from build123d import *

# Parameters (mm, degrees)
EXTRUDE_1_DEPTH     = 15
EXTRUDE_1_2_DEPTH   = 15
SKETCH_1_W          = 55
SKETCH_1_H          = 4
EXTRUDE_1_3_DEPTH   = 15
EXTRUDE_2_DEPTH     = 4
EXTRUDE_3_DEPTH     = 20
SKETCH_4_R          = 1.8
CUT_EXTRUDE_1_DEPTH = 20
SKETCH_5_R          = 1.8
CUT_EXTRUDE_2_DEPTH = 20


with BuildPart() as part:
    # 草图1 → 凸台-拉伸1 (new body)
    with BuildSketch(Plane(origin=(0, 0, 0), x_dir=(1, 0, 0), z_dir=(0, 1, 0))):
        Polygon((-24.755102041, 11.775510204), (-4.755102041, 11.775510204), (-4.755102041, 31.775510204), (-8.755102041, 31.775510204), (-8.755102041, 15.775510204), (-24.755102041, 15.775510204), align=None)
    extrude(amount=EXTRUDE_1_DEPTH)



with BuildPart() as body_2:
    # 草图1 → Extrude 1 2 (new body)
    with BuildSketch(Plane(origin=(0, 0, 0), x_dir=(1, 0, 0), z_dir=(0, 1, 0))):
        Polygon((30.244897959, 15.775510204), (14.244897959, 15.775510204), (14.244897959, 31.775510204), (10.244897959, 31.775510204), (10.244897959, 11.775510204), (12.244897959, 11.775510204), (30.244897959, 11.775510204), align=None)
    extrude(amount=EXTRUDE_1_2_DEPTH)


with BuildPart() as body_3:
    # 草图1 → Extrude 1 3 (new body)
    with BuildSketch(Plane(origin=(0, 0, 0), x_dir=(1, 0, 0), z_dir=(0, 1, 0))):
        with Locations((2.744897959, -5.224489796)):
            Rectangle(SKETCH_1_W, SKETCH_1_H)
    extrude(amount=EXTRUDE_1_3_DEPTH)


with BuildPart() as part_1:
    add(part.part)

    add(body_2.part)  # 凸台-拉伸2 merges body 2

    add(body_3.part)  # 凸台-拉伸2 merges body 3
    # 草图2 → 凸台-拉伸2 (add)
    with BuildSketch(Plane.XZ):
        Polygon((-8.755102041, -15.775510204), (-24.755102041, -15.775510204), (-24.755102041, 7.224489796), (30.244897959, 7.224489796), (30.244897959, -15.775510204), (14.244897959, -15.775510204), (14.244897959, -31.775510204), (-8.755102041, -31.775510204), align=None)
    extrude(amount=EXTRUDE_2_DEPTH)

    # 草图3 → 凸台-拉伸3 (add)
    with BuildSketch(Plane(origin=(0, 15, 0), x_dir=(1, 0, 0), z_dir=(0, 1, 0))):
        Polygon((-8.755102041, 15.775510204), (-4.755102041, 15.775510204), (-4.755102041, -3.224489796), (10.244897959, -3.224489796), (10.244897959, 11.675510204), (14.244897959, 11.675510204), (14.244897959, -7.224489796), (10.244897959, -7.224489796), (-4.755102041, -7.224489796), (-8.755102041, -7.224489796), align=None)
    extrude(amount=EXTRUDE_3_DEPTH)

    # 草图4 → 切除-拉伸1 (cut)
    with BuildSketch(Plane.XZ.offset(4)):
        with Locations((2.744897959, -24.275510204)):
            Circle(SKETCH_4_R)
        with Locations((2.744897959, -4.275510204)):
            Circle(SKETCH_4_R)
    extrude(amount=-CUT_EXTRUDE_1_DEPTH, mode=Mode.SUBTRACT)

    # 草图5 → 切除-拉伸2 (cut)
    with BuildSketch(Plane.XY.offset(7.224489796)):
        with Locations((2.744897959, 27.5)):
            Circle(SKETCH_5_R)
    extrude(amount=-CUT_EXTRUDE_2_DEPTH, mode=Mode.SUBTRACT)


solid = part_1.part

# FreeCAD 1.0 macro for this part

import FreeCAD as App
import Part
import Sketcher
Q = App.Units.Quantity

doc = App.newDocument("Part")
params = doc.addObject("Spreadsheet::Sheet", "Params")
for row, (alias, value) in enumerate([
    ("sketch1_width", "20 mm"),
    ("sketch1_width2", "4 mm"),
    ("pad1_length", "15 mm"),
    ("sketch2_width", "16 mm"),
    ("sketch2_width2", "4 mm"),
    ("pad2_length", "15 mm"),
    ("sketch3_width", "55 mm"),
    ("sketch3_height", "4 mm"),
    ("pad3_length", "15 mm"),
    ("sketch4_width", "16 mm"),
    ("sketch4_width2", "23 mm"),
    ("pad4_length", "4 mm"),
    ("sketch5_width", "4 mm"),
    ("sketch5_width2", "23 mm"),
    ("sketch5_height", "19 mm"),
    ("sketch5_height2", "18.9 mm"),
    ("pad5_length", "20 mm"),
    ("sketch6_diameter", "3.6 mm"),
    ("pocket1_length", "20 mm"),
    ("sketch7_diameter", "3.6 mm"),
    ("pocket2_length", "20 mm"),
], start=1):
    params.set(f"A{row}", alias)
    params.set(f"B{row}", "=" + value)
    params.setAlias(f"B{row}", alias)

body = doc.addObject("PartDesign::Body", "Body")

sketch1 = body.newObject("Sketcher::SketchObject", "Sketch")
sketch1.AttachmentSupport = (doc.getObject("XZ_Plane"), [""])
sketch1.MapMode = "FlatFace"
sketch1.addGeometry(Part.LineSegment(App.Vector(-24.8, -11.8, 0), App.Vector(-4.8, -11.8, 0)), False)
sketch1.addGeometry(Part.LineSegment(App.Vector(-4.8, -11.8, 0), App.Vector(-4.8, -31.8, 0)), False)
sketch1.addGeometry(Part.LineSegment(App.Vector(-4.8, -31.8, 0), App.Vector(-8.8, -31.8, 0)), False)
sketch1.addGeometry(Part.LineSegment(App.Vector(-8.8, -31.8, 0), App.Vector(-8.8, -15.8, 0)), False)
sketch1.addGeometry(Part.LineSegment(App.Vector(-8.8, -15.8, 0), App.Vector(-24.8, -15.8, 0)), False)
sketch1.addGeometry(Part.LineSegment(App.Vector(-24.8, -15.8, 0), App.Vector(-24.8, -11.8, 0)), False)
sketch1.addConstraint(Sketcher.Constraint("Coincident", 0, 2, 1, 1))
sketch1.addConstraint(Sketcher.Constraint("Coincident", 1, 2, 2, 1))
sketch1.addConstraint(Sketcher.Constraint("Coincident", 2, 2, 3, 1))
sketch1.addConstraint(Sketcher.Constraint("Coincident", 3, 2, 4, 1))
sketch1.addConstraint(Sketcher.Constraint("Coincident", 4, 2, 5, 1))
sketch1.addConstraint(Sketcher.Constraint("Coincident", 5, 2, 0, 1))
sketch1.addConstraint(Sketcher.Constraint("Horizontal", 0))
sketch1.addConstraint(Sketcher.Constraint("Vertical", 1))
sketch1.addConstraint(Sketcher.Constraint("Horizontal", 2))
sketch1.addConstraint(Sketcher.Constraint("Vertical", 3))
sketch1.addConstraint(Sketcher.Constraint("Horizontal", 4))
sketch1.addConstraint(Sketcher.Constraint("Vertical", 5))
sketch1.addConstraint(Sketcher.Constraint("Equal", 0, 1))
sketch1.addConstraint(Sketcher.Constraint("Equal", 4, 3))
sketch1.addConstraint(Sketcher.Constraint("DistanceX", 0, 1, 0, 2, Q("20 mm")))
sketch1.addConstraint(Sketcher.Constraint("DistanceX", 2, 2, 2, 1, Q("4 mm")))
sketch1.addConstraint(Sketcher.Constraint("DistanceY", 0, 2, -1, 1, Q("11.77551 mm")))
sketch1.addConstraint(Sketcher.Constraint("DistanceX", 0, 2, -1, 1, Q("4.755102 mm")))
sketch1.setExpression("Constraints[14]", "Params.sketch1_width")
sketch1.setExpression("Constraints[15]", "Params.sketch1_width2")
pad1 = body.newObject("PartDesign::Pad", "Pad")
pad1.Profile = sketch1
pad1.setExpression("Length", "Params.pad1_length")
pad1.Reversed = True
body2 = doc.addObject("PartDesign::Body", "Body001")

sketch2 = body2.newObject("Sketcher::SketchObject", "Sketch001")
sketch2.AttachmentSupport = (doc.getObject("XZ_Plane001"), [""])
sketch2.MapMode = "FlatFace"
sketch2.addGeometry(Part.LineSegment(App.Vector(30.2, -15.8, 0), App.Vector(14.2, -15.8, 0)), False)
sketch2.addGeometry(Part.LineSegment(App.Vector(14.2, -15.8, 0), App.Vector(14.2, -31.8, 0)), False)
sketch2.addGeometry(Part.LineSegment(App.Vector(14.2, -31.8, 0), App.Vector(10.2, -31.8, 0)), False)
sketch2.addGeometry(Part.LineSegment(App.Vector(10.2, -31.8, 0), App.Vector(10.2, -11.8, 0)), False)
sketch2.addGeometry(Part.LineSegment(App.Vector(10.2, -11.8, 0), App.Vector(30.2, -11.8, 0)), False)
sketch2.addGeometry(Part.LineSegment(App.Vector(30.2, -11.8, 0), App.Vector(30.2, -15.8, 0)), False)
sketch2.addConstraint(Sketcher.Constraint("Coincident", 0, 2, 1, 1))
sketch2.addConstraint(Sketcher.Constraint("Coincident", 1, 2, 2, 1))
sketch2.addConstraint(Sketcher.Constraint("Coincident", 2, 2, 3, 1))
sketch2.addConstraint(Sketcher.Constraint("Coincident", 3, 2, 4, 1))
sketch2.addConstraint(Sketcher.Constraint("Coincident", 4, 2, 5, 1))
sketch2.addConstraint(Sketcher.Constraint("Coincident", 5, 2, 0, 1))
sketch2.addConstraint(Sketcher.Constraint("Horizontal", 0))
sketch2.addConstraint(Sketcher.Constraint("Vertical", 1))
sketch2.addConstraint(Sketcher.Constraint("Horizontal", 2))
sketch2.addConstraint(Sketcher.Constraint("Vertical", 3))
sketch2.addConstraint(Sketcher.Constraint("Horizontal", 4))
sketch2.addConstraint(Sketcher.Constraint("Vertical", 5))
sketch2.addConstraint(Sketcher.Constraint("Equal", 0, 1))
sketch2.addConstraint(Sketcher.Constraint("Equal", 4, 3))
sketch2.addConstraint(Sketcher.Constraint("DistanceX", 0, 2, 0, 1, Q("16 mm")))
sketch2.addConstraint(Sketcher.Constraint("DistanceX", 2, 2, 2, 1, Q("4 mm")))
sketch2.addConstraint(Sketcher.Constraint("DistanceY", 0, 2, -1, 1, Q("15.77551 mm")))
sketch2.addConstraint(Sketcher.Constraint("DistanceX", -1, 1, 0, 2, Q("14.244898 mm")))
sketch2.setExpression("Constraints[14]", "Params.sketch2_width")
sketch2.setExpression("Constraints[15]", "Params.sketch2_width2")
pad2 = body2.newObject("PartDesign::Pad", "Pad001")
pad2.Profile = sketch2
pad2.setExpression("Length", "Params.pad2_length")
pad2.Reversed = True
body3 = doc.addObject("PartDesign::Body", "Body002")

sketch3 = body3.newObject("Sketcher::SketchObject", "Sketch002")
sketch3.AttachmentSupport = (doc.getObject("XZ_Plane002"), [""])
sketch3.MapMode = "FlatFace"
sketch3.addGeometry(Part.LineSegment(App.Vector(-24.8, 3.2, 0), App.Vector(-24.8, 7.2, 0)), False)
sketch3.addGeometry(Part.LineSegment(App.Vector(-24.8, 7.2, 0), App.Vector(30.2, 7.2, 0)), False)
sketch3.addGeometry(Part.LineSegment(App.Vector(30.2, 7.2, 0), App.Vector(30.2, 3.2, 0)), False)
sketch3.addGeometry(Part.LineSegment(App.Vector(30.2, 3.2, 0), App.Vector(-24.8, 3.2, 0)), False)
sketch3.addConstraint(Sketcher.Constraint("Coincident", 0, 2, 1, 1))
sketch3.addConstraint(Sketcher.Constraint("Coincident", 1, 2, 2, 1))
sketch3.addConstraint(Sketcher.Constraint("Coincident", 2, 2, 3, 1))
sketch3.addConstraint(Sketcher.Constraint("Coincident", 3, 2, 0, 1))
sketch3.addConstraint(Sketcher.Constraint("Vertical", 0))
sketch3.addConstraint(Sketcher.Constraint("Horizontal", 1))
sketch3.addConstraint(Sketcher.Constraint("Vertical", 2))
sketch3.addConstraint(Sketcher.Constraint("Horizontal", 3))
sketch3.addConstraint(Sketcher.Constraint("DistanceX", 1, 1, 1, 2, Q("55 mm")))
sketch3.addConstraint(Sketcher.Constraint("DistanceY", 0, 1, 0, 2, Q("4 mm")))
sketch3.addConstraint(Sketcher.Constraint("DistanceY", -1, 1, 0, 2, Q("7.22449 mm")))
sketch3.addConstraint(Sketcher.Constraint("DistanceX", 0, 2, -1, 1, Q("24.755102 mm")))
sketch3.setExpression("Constraints[8]", "Params.sketch3_width")
sketch3.setExpression("Constraints[9]", "Params.sketch3_height")
pad3 = body3.newObject("PartDesign::Pad", "Pad002")
pad3.Profile = sketch3
pad3.setExpression("Length", "Params.pad3_length")
pad3.Reversed = True
body.AllowCompound = True
doc.recompute()

boolean = body.newObject("PartDesign::Boolean", "Boolean")
boolean.Type = "Fuse"
boolean.addObjects([body2])
doc.recompute()

boolean2 = body.newObject("PartDesign::Boolean", "Boolean001")
boolean2.Type = "Fuse"
boolean2.addObjects([body3])

sketch4 = body.newObject("Sketcher::SketchObject", "Sketch003")
sketch4.AttachmentSupport = (doc.getObject("XZ_Plane"), [""])
sketch4.MapMode = "FlatFace"
sketch4.addGeometry(Part.LineSegment(App.Vector(-25, -16, 0), App.Vector(-9, -16, 0)), False)
sketch4.addGeometry(Part.LineSegment(App.Vector(-9, -16, 0), App.Vector(-9, -32, 0)), False)
sketch4.addGeometry(Part.LineSegment(App.Vector(-9, -32, 0), App.Vector(14, -32, 0)), False)
sketch4.addGeometry(Part.LineSegment(App.Vector(14, -32, 0), App.Vector(14, -16, 0)), False)
sketch4.addGeometry(Part.LineSegment(App.Vector(14, -16, 0), App.Vector(30, -16, 0)), False)
sketch4.addGeometry(Part.LineSegment(App.Vector(30, -16, 0), App.Vector(30, 7, 0)), False)
sketch4.addGeometry(Part.LineSegment(App.Vector(30, 7, 0), App.Vector(-25, 7, 0)), False)
sketch4.addGeometry(Part.LineSegment(App.Vector(-25, 7, 0), App.Vector(-25, -16, 0)), False)
sketch4.addConstraint(Sketcher.Constraint("Coincident", 0, 2, 1, 1))
sketch4.addConstraint(Sketcher.Constraint("Coincident", 1, 2, 2, 1))
sketch4.addConstraint(Sketcher.Constraint("Coincident", 2, 2, 3, 1))
sketch4.addConstraint(Sketcher.Constraint("Coincident", 3, 2, 4, 1))
sketch4.addConstraint(Sketcher.Constraint("Coincident", 4, 2, 5, 1))
sketch4.addConstraint(Sketcher.Constraint("Coincident", 5, 2, 6, 1))
sketch4.addConstraint(Sketcher.Constraint("Coincident", 6, 2, 7, 1))
sketch4.addConstraint(Sketcher.Constraint("Coincident", 7, 2, 0, 1))
sketch4.addConstraint(Sketcher.Constraint("Horizontal", 0))
sketch4.addConstraint(Sketcher.Constraint("Vertical", 1))
sketch4.addConstraint(Sketcher.Constraint("Horizontal", 2))
sketch4.addConstraint(Sketcher.Constraint("Vertical", 3))
sketch4.addConstraint(Sketcher.Constraint("Horizontal", 4))
sketch4.addConstraint(Sketcher.Constraint("Vertical", 5))
sketch4.addConstraint(Sketcher.Constraint("Horizontal", 6))
sketch4.addConstraint(Sketcher.Constraint("Vertical", 7))
sketch4.addConstraint(Sketcher.Constraint("Horizontal", 0, 2, 3, 2))
sketch4.addConstraint(Sketcher.Constraint("Equal", 0, 4))
sketch4.addConstraint(Sketcher.Constraint("Equal", 4, 1))
sketch4.addConstraint(Sketcher.Constraint("Equal", 2, 5))
sketch4.addConstraint(Sketcher.Constraint("DistanceX", 0, 1, 0, 2, Q("16 mm")))
sketch4.addConstraint(Sketcher.Constraint("DistanceX", 2, 1, 2, 2, Q("23 mm")))
sketch4.addConstraint(Sketcher.Constraint("DistanceY", 0, 2, -1, 1, Q("15.77551 mm")))
sketch4.addConstraint(Sketcher.Constraint("DistanceX", 0, 2, -1, 1, Q("8.755102 mm")))
sketch4.setExpression("Constraints[20]", "Params.sketch4_width")
sketch4.setExpression("Constraints[21]", "Params.sketch4_width2")
pad4 = body.newObject("PartDesign::Pad", "Pad003")
pad4.Profile = sketch4
pad4.setExpression("Length", "Params.pad4_length")

sketch5 = body.newObject("Sketcher::SketchObject", "Sketch004")
sketch5.AttachmentSupport = (doc.getObject("XZ_Plane"), [""])
sketch5.MapMode = "FlatFace"
sketch5.AttachmentOffset = App.Placement(App.Vector(0, 0, -15), App.Rotation())
sketch5.addGeometry(Part.LineSegment(App.Vector(-4.8, -15.8, 0), App.Vector(-8.8, -15.8, 0)), False)
sketch5.addGeometry(Part.LineSegment(App.Vector(-8.8, -15.8, 0), App.Vector(-8.8, 7.2, 0)), False)
sketch5.addGeometry(Part.LineSegment(App.Vector(-8.8, 7.2, 0), App.Vector(14.2, 7.2, 0)), False)
sketch5.addGeometry(Part.LineSegment(App.Vector(14.2, 7.2, 0), App.Vector(14.2, -11.7, 0)), False)
sketch5.addGeometry(Part.LineSegment(App.Vector(14.2, -11.7, 0), App.Vector(10.2, -11.7, 0)), False)
sketch5.addGeometry(Part.LineSegment(App.Vector(10.2, -11.7, 0), App.Vector(10.2, 3.2, 0)), False)
sketch5.addGeometry(Part.LineSegment(App.Vector(10.2, 3.2, 0), App.Vector(-4.8, 3.2, 0)), False)
sketch5.addGeometry(Part.LineSegment(App.Vector(-4.8, 3.2, 0), App.Vector(-4.8, -15.8, 0)), False)
sketch5.addConstraint(Sketcher.Constraint("Coincident", 0, 2, 1, 1))
sketch5.addConstraint(Sketcher.Constraint("Coincident", 1, 2, 2, 1))
sketch5.addConstraint(Sketcher.Constraint("Coincident", 2, 2, 3, 1))
sketch5.addConstraint(Sketcher.Constraint("Coincident", 3, 2, 4, 1))
sketch5.addConstraint(Sketcher.Constraint("Coincident", 4, 2, 5, 1))
sketch5.addConstraint(Sketcher.Constraint("Coincident", 5, 2, 6, 1))
sketch5.addConstraint(Sketcher.Constraint("Coincident", 6, 2, 7, 1))
sketch5.addConstraint(Sketcher.Constraint("Coincident", 7, 2, 0, 1))
sketch5.addConstraint(Sketcher.Constraint("Horizontal", 0))
sketch5.addConstraint(Sketcher.Constraint("Vertical", 1))
sketch5.addConstraint(Sketcher.Constraint("Horizontal", 2))
sketch5.addConstraint(Sketcher.Constraint("Vertical", 3))
sketch5.addConstraint(Sketcher.Constraint("Horizontal", 4))
sketch5.addConstraint(Sketcher.Constraint("Vertical", 5))
sketch5.addConstraint(Sketcher.Constraint("Horizontal", 6))
sketch5.addConstraint(Sketcher.Constraint("Vertical", 7))
sketch5.addConstraint(Sketcher.Constraint("Equal", 0, 4))
sketch5.addConstraint(Sketcher.Constraint("Equal", 2, 1))
sketch5.addConstraint(Sketcher.Constraint("DistanceX", 0, 2, 0, 1, Q("4 mm")))
sketch5.addConstraint(Sketcher.Constraint("DistanceX", 2, 1, 2, 2, Q("23 mm")))
sketch5.addConstraint(Sketcher.Constraint("DistanceY", 7, 2, 7, 1, Q("19 mm")))
sketch5.addConstraint(Sketcher.Constraint("DistanceY", 3, 2, 3, 1, Q("18.9 mm")))
sketch5.addConstraint(Sketcher.Constraint("DistanceY", 0, 2, -1, 1, Q("15.77551 mm")))
sketch5.addConstraint(Sketcher.Constraint("DistanceX", 0, 2, -1, 1, Q("8.755102 mm")))
sketch5.setExpression("Constraints[18]", "Params.sketch5_width")
sketch5.setExpression("Constraints[19]", "Params.sketch5_width2")
sketch5.setExpression("Constraints[20]", "Params.sketch5_height")
sketch5.setExpression("Constraints[21]", "Params.sketch5_height2")
pad5 = body.newObject("PartDesign::Pad", "Pad004")
pad5.Profile = sketch5
pad5.setExpression("Length", "Params.pad5_length")
pad5.Reversed = True

sketch6 = body.newObject("Sketcher::SketchObject", "Sketch005")
sketch6.AttachmentSupport = (doc.getObject("XZ_Plane"), [""])
sketch6.MapMode = "FlatFace"
sketch6.AttachmentOffset = App.Placement(App.Vector(0, 0, 4), App.Rotation())
sketch6.addGeometry(Part.Circle(App.Vector(2.7, -24.3, 0), App.Vector(0, 0, 1), 1.8), False)
sketch6.addGeometry(Part.Circle(App.Vector(2.7, -4.3, 0), App.Vector(0, 0, 1), 1.8), False)
sketch6.addConstraint(Sketcher.Constraint("Equal", 0, 1))
sketch6.addConstraint(Sketcher.Constraint("Vertical", 0, 3, 1, 3))
sketch6.addConstraint(Sketcher.Constraint("Diameter", 0, Q("3.6 mm")))
sketch6.addConstraint(Sketcher.Constraint("DistanceY", 0, 3, 1, 3, Q("20 mm")))
sketch6.addConstraint(Sketcher.Constraint("DistanceY", 0, 3, -1, 1, Q("24.27551 mm")))
sketch6.addConstraint(Sketcher.Constraint("DistanceX", -1, 1, 0, 3, Q("2.744898 mm")))
sketch6.setExpression("Constraints[2]", "Params.sketch6_diameter")
pocket1 = body.newObject("PartDesign::Pocket", "Pocket")
pocket1.Profile = sketch6
pocket1.setExpression("Length", "Params.pocket1_length")

sketch7 = body.newObject("Sketcher::SketchObject", "Sketch006")
sketch7.AttachmentSupport = (doc.getObject("XY_Plane"), [""])
sketch7.MapMode = "FlatFace"
sketch7.AttachmentOffset = App.Placement(App.Vector(0, 0, 7.22449), App.Rotation())
sketch7.addGeometry(Part.Circle(App.Vector(2.7, 27.5, 0), App.Vector(0, 0, 1), 1.8), False)
sketch7.addConstraint(Sketcher.Constraint("Diameter", 0, Q("3.6 mm")))
sketch7.addConstraint(Sketcher.Constraint("DistanceY", -1, 1, 0, 3, Q("27.5 mm")))
sketch7.addConstraint(Sketcher.Constraint("DistanceX", -1, 1, 0, 3, Q("2.744898 mm")))
sketch7.setExpression("Constraints[0]", "Params.sketch7_diameter")
pocket2 = body.newObject("PartDesign::Pocket", "Pocket001")
pocket2.Profile = sketch7
pocket2.setExpression("Length", "Params.pocket2_length")

doc.recompute()
